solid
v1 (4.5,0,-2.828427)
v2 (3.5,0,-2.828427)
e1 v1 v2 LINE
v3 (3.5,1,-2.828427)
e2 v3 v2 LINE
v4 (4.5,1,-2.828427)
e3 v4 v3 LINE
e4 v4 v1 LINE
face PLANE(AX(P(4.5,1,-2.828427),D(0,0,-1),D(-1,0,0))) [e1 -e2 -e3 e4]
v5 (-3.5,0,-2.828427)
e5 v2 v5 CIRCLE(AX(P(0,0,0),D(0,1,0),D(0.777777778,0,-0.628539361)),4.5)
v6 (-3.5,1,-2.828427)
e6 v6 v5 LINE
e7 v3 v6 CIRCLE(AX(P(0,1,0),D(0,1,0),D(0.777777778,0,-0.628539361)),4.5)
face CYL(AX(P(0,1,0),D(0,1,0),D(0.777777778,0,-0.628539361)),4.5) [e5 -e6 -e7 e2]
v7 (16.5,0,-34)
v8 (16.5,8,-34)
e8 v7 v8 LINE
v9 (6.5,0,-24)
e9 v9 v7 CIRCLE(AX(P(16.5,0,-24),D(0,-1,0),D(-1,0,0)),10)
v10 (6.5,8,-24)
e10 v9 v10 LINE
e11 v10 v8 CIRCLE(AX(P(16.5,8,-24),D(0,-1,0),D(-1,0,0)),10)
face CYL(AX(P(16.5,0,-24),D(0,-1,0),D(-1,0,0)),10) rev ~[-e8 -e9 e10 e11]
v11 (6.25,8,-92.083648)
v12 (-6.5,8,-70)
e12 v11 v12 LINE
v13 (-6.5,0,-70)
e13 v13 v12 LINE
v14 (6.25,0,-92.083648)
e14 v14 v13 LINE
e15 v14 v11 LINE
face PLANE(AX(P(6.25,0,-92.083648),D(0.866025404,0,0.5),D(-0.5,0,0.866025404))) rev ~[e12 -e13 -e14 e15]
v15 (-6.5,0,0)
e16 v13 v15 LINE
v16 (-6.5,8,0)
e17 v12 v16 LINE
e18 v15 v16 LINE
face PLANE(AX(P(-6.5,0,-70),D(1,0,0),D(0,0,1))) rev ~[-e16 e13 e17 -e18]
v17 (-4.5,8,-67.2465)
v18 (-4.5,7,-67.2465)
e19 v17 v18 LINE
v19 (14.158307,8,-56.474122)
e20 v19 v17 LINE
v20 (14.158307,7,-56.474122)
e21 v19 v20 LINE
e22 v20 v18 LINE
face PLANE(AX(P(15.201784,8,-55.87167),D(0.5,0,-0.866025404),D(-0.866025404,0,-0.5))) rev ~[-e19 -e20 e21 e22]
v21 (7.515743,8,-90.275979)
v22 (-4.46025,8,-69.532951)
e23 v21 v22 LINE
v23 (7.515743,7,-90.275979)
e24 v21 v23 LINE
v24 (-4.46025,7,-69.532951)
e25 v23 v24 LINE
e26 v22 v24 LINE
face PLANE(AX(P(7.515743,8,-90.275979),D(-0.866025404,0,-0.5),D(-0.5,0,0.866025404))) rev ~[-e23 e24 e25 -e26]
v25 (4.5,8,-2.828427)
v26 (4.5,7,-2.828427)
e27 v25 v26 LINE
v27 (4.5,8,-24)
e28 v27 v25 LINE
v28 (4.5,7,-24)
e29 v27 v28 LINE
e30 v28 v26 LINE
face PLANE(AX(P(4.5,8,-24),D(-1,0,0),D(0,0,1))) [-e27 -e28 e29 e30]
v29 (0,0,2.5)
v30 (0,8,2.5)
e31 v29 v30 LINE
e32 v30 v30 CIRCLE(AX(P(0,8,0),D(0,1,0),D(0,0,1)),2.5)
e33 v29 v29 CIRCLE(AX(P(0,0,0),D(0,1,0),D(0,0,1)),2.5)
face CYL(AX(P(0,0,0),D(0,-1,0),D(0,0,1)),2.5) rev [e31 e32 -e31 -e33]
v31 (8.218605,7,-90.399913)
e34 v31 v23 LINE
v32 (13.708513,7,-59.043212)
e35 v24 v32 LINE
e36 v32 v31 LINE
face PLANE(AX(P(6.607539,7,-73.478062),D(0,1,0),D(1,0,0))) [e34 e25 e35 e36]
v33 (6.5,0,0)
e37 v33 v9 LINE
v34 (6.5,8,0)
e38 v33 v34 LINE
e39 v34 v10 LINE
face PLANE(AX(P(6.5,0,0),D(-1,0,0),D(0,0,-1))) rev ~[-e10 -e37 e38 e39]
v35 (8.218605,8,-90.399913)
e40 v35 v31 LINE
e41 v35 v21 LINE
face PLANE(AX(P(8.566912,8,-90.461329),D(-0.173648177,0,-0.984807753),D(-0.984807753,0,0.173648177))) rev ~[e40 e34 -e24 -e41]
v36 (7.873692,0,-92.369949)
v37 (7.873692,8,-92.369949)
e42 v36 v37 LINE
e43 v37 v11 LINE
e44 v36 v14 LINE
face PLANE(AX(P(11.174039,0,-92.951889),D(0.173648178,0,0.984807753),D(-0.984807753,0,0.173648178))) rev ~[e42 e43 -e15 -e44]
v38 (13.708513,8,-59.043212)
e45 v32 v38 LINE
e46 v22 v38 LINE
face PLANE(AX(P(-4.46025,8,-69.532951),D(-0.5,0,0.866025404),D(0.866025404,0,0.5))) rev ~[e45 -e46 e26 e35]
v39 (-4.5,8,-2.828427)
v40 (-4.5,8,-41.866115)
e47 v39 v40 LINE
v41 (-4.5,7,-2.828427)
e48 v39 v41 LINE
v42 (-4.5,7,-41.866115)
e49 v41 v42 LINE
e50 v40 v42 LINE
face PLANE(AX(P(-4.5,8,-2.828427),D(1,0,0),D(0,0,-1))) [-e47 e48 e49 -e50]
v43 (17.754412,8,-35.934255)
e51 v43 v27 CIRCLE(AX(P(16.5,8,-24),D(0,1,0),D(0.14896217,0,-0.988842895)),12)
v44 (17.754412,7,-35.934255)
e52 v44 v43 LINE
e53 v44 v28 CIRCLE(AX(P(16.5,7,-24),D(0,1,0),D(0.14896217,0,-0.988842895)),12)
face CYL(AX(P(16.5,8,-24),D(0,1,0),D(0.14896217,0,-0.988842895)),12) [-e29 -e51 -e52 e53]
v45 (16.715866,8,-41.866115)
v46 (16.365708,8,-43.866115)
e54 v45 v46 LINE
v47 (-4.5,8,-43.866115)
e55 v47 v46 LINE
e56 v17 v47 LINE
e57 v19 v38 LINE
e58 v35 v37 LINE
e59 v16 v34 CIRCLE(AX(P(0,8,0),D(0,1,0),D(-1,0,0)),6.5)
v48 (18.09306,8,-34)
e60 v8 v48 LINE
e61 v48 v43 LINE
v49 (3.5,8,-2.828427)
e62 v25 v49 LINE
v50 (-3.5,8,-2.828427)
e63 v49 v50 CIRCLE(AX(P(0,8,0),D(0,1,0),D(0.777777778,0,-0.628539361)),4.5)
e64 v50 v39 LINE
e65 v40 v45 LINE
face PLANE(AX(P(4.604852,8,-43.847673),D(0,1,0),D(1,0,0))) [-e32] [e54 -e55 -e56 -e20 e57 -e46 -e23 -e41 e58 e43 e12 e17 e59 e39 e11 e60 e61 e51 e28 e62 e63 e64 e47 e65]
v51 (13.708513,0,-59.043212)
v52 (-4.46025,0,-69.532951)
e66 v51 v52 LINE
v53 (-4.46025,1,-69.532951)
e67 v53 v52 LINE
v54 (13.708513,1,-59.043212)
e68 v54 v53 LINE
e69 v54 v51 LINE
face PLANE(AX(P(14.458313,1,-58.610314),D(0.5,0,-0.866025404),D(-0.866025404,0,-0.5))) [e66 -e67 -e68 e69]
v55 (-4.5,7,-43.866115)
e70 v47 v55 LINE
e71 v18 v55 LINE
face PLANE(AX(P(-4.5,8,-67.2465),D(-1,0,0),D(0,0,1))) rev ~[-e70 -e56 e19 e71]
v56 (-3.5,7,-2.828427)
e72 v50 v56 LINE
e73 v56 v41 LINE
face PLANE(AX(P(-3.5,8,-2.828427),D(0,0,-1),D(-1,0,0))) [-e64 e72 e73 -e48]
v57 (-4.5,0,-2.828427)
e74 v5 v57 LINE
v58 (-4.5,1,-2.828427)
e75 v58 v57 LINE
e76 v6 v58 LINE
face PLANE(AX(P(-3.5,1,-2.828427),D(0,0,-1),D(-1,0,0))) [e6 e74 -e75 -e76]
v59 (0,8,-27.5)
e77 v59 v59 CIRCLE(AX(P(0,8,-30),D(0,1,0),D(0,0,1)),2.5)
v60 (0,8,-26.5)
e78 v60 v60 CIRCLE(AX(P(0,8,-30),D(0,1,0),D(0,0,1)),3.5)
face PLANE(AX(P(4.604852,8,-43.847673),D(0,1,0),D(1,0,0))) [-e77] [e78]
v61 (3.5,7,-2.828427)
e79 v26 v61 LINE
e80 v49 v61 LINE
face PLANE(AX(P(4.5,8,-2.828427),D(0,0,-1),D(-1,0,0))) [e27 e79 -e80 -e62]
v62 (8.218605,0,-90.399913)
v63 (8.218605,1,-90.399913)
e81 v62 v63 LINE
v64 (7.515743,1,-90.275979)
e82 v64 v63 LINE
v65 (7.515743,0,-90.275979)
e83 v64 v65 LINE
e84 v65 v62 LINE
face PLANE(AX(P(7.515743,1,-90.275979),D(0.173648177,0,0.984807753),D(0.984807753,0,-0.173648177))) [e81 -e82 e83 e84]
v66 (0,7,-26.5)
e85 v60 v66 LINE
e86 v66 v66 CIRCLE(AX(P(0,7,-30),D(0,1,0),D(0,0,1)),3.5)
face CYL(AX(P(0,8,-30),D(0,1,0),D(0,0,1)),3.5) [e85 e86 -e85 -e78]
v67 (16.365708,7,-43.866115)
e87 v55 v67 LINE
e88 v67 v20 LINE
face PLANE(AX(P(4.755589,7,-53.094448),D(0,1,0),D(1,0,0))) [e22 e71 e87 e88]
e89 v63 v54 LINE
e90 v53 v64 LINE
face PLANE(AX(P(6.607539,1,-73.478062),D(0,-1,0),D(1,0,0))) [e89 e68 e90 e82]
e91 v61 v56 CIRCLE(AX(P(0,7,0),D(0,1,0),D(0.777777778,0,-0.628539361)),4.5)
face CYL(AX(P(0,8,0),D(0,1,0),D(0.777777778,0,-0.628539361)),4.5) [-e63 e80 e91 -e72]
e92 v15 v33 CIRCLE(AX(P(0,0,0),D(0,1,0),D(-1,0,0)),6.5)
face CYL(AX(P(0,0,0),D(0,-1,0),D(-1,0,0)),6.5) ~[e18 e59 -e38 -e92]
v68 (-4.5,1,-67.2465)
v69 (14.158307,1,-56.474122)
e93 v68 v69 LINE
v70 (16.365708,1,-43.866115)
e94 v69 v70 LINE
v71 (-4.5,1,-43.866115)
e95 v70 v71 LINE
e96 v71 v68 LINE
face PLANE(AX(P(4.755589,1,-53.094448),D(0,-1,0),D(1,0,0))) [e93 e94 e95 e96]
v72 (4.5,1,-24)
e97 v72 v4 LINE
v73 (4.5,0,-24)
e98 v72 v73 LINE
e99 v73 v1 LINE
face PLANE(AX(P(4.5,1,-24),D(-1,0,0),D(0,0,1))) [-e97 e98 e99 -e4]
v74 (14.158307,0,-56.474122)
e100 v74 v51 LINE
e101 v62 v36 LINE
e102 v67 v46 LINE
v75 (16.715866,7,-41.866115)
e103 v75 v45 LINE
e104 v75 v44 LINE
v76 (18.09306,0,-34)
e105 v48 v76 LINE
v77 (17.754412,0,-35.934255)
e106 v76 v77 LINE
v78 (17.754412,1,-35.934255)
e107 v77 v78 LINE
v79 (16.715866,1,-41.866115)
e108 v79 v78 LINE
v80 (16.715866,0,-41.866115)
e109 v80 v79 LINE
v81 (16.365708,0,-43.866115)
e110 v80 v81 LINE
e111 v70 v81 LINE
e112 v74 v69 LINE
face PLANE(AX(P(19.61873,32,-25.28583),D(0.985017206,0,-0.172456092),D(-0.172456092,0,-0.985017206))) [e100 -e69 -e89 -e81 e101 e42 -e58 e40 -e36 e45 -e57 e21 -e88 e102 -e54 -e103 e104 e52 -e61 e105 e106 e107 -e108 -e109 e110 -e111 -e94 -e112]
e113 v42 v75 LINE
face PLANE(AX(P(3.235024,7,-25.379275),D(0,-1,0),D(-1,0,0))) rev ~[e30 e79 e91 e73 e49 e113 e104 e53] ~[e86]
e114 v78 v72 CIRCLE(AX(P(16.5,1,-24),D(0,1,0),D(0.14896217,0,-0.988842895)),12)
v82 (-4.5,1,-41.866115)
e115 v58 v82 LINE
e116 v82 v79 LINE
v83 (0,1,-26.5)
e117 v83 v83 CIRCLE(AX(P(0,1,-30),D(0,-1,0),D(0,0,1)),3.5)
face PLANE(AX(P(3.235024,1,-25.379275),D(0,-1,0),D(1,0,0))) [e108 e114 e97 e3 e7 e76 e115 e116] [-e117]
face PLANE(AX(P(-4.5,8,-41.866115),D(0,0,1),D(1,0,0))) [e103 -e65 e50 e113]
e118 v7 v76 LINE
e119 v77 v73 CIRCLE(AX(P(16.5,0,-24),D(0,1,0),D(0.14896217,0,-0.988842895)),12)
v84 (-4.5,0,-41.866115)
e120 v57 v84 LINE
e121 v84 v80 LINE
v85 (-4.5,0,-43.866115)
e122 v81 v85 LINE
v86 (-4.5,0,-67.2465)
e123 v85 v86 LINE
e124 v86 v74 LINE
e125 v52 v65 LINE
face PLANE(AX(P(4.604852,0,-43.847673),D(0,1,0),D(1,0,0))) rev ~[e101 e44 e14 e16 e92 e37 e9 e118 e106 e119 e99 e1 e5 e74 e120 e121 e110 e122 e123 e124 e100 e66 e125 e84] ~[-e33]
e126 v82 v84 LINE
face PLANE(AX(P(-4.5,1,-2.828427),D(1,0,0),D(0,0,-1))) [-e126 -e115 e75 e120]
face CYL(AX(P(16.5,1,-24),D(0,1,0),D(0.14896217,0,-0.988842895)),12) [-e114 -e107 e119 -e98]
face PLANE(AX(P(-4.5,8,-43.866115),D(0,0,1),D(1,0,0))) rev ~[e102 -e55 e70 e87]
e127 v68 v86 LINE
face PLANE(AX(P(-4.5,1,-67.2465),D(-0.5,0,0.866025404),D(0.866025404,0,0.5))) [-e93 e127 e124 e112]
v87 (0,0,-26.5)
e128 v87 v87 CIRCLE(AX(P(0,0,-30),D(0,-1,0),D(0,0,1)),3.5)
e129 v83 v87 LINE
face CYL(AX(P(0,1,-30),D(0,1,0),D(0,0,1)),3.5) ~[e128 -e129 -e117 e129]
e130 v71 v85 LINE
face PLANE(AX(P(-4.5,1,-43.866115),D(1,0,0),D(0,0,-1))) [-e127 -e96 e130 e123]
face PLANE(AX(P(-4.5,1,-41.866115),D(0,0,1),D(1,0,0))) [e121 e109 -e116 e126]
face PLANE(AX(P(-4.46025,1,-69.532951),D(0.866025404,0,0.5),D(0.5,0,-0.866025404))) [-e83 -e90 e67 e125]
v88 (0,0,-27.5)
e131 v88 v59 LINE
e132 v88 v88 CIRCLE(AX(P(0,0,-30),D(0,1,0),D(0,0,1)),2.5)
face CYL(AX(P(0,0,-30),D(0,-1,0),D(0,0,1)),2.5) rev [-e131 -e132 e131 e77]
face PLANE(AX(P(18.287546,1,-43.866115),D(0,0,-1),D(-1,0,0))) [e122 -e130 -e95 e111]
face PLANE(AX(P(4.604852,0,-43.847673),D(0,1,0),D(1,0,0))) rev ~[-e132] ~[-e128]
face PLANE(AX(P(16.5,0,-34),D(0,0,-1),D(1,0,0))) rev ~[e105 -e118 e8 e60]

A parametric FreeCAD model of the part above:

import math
import FreeCAD as App
import Part
import Sketcher
from FreeCAD import Vector
Q = App.Units.Quantity

doc = App.newDocument("Part")
body = doc.addObject("PartDesign::Body", "Body")

sketch1 = body.newObject("Sketcher::SketchObject", "Sketch")
sketch1.AttachmentSupport = (doc.getObject("XZ_Plane"), [""])
sketch1.MapMode = "FlatFace"
sketch1.addGeometry([
    Part.LineSegment(Vector(-6.5, -70, 0), Vector(-6.5, 0, 0)),
    Part.ArcOfCircle(Part.Circle(Vector(0, 0, 0), Vector(0, 0, 1), 6.5), math.radians(0), math.radians(180)),
    Part.LineSegment(Vector(6.5, 0, 0), Vector(6.5, -24, 0)),
    Part.ArcOfCircle(Part.Circle(Vector(16.5, -24, 0), Vector(0, 0, 1), 10), math.radians(180), math.radians(270)),
    Part.LineSegment(Vector(16.5, -34, 0), Vector(19.5, -34, 0)),
    Part.LineSegment(Vector(19.5, -34, 0), Vector(21.6, -36.1, 0)),
    Part.LineSegment(Vector(21.6, -36.1, 0), Vector(19.6, -38.1, 0)),
    Part.LineSegment(Vector(19.6, -38.1, 0), Vector(21.6, -40.1, 0)),
    Part.LineSegment(Vector(21.6, -40.1, 0), Vector(19.6, -42.1, 0)),
    Part.LineSegment(Vector(19.6, -42.1, 0), Vector(21.6, -44.1, 0)),
    Part.ArcOfCircle(Part.Circle(Vector(106.5, -82.1, 0), Vector(0, 0, 1), 93), math.radians(156), math.radians(178)),
    Part.LineSegment(Vector(13.5, -79.6, 0), Vector(11.2, -81.2, 0)),
    Part.LineSegment(Vector(11.2, -81.2, 0), Vector(12.8, -83.5, 0)),
    Part.LineSegment(Vector(12.8, -83.5, 0), Vector(10.5, -85.1, 0)),
    Part.LineSegment(Vector(10.5, -85.1, 0), Vector(12.1, -87.4, 0)),
    Part.LineSegment(Vector(12.1, -87.4, 0), Vector(9.8, -89.1, 0)),
    Part.LineSegment(Vector(9.8, -89.1, 0), Vector(11.5, -91.4, 0)),
    Part.LineSegment(Vector(11.5, -91.4, 0), Vector(11.2, -93, 0)),
    Part.LineSegment(Vector(11.2, -93, 0), Vector(6.2, -92.1, 0)),
    Part.LineSegment(Vector(6.2, -92.1, 0), Vector(-6.5, -70, 0)),
    Part.Circle(Vector(0, 0, 0), Vector(0, 0, 1), 2.5),
    Part.Circle(Vector(0, -30, 0), Vector(0, 0, 1), 2.5),
], False)
sketch1.addConstraint([
    Sketcher.Constraint("Tangent", 0, 2, 1, 2),
    Sketcher.Constraint("Tangent", 1, 1, 2, 1),
    Sketcher.Constraint("Tangent", 2, 2, 3, 1),
    Sketcher.Constraint("Tangent", 3, 2, 4, 1),
    Sketcher.Constraint("Coincident", 4, 2, 5, 1),
    Sketcher.Constraint("Coincident", 5, 2, 6, 1),
    Sketcher.Constraint("Coincident", 6, 2, 7, 1),
    Sketcher.Constraint("Coincident", 7, 2, 8, 1),
    Sketcher.Constraint("Coincident", 8, 2, 9, 1),
    Sketcher.Constraint("Coincident", 9, 2, 10, 1),
    Sketcher.Constraint("Coincident", 10, 2, 11, 1),
    Sketcher.Constraint("Coincident", 11, 2, 12, 1),
    Sketcher.Constraint("Coincident", 12, 2, 13, 1),
    Sketcher.Constraint("Coincident", 13, 2, 14, 1),
    Sketcher.Constraint("Coincident", 14, 2, 15, 1),
    Sketcher.Constraint("Coincident", 15, 2, 16, 1),
    Sketcher.Constraint("Coincident", 16, 2, 17, 1),
    Sketcher.Constraint("Coincident", 17, 2, 18, 1),
    Sketcher.Constraint("Coincident", 18, 2, 19, 1),
    Sketcher.Constraint("Coincident", 19, 2, 0, 1),
    Sketcher.Constraint("Vertical", 0),
    Sketcher.Constraint("Vertical", 2),
    Sketcher.Constraint("Horizontal", 4),
    Sketcher.Constraint("Coincident", 1, 3, -1, 1),
    Sketcher.Constraint("Coincident", 20, 3, -1, 1),
    Sketcher.Constraint("Equal", 20, 21),
    Sketcher.Constraint("PointOnObject", 21, 3, -2),
    Sketcher.Constraint("Perpendicular", 5, 6),
    Sketcher.Constraint("Perpendicular", 6, 7),
    Sketcher.Constraint("Perpendicular", 7, 8),
    Sketcher.Constraint("Perpendicular", 8, 9),
    Sketcher.Constraint("Perpendicular", 11, 12),
    Sketcher.Constraint("Perpendicular", 12, 13),
    Sketcher.Constraint("Perpendicular", 13, 14),
    Sketcher.Constraint("Perpendicular", 14, 15),
    Sketcher.Constraint("Perpendicular", 15, 16),
    Sketcher.Constraint("Perpendicular", 17, 18),
    Sketcher.Constraint("Vertical", 5, 2, 7, 2),
    Sketcher.Constraint("Vertical", 6, 2, 8, 2),
    Sketcher.Constraint("Vertical", 7, 2, 9, 2),
    Sketcher.Constraint("Equal", 6, 7),
    Sketcher.Constraint("Equal", 9, 11),
    Sketcher.Constraint("Equal", 11, 12),
    Sketcher.Constraint("Equal", 12, 13),
    Sketcher.Constraint("Equal", 13, 14),
    Sketcher.Constraint("Equal", 14, 15),
    Sketcher.Constraint("Equal", 15, 16),
    Sketcher.Constraint("Diameter", 20, 5.0),
    Sketcher.Constraint("Radius", 3, 10.0),
    Sketcher.Constraint("Radius", 1, 6.5),
    Sketcher.Constraint("DistanceX", 4, 1, 4, 2, 3.0),
    Sketcher.Constraint("DistanceY", 0, 1, 0, 2, 70.0),
    Sketcher.Constraint("DistanceY", 2, 2, 2, 1, 24.0),
    Sketcher.Constraint("Angle", 11, Q("-145 deg")),
    Sketcher.Constraint("Angle", 17, Q("-100 deg")),
    Sketcher.Constraint("Angle", 19, Q("120 deg")),
    Sketcher.Constraint("Distance", 5, 3.0),
    Sketcher.Constraint("Distance", 18, 5.0),
    Sketcher.Constraint("DistanceY", 21, 3, -1, 1, 30.0),
    Sketcher.Constraint("DistanceX", 6, 2, 5, 2, 2.0),
    Sketcher.Constraint("Distance", 17, 1.6),
    Sketcher.Constraint("Distance", 19, 25.5),
    Sketcher.Constraint("Radius", 10, 93.047321),
])
pad1 = body.newObject("PartDesign::Pad", "Pad")
pad1.Profile = sketch1
pad1.Length = 8
pad1.Reversed = True

sketch2 = body.newObject("Sketcher::SketchObject", "Sketch001")
sketch2.AttachmentSupport = (doc.getObject("XZ_Plane"), [""])
sketch2.MapMode = "FlatFace"
sketch2.AttachmentOffset = App.Placement(Vector(0, 0, -8), App.Rotation())
sketch2.addGeometry([
    Part.LineSegment(Vector(7.5, -90.3, 0), Vector(-4.5, -69.5, 0)),
    Part.LineSegment(Vector(-4.5, -69.5, 0), Vector(14.5, -58.6, 0)),
    Part.ArcOfCircle(Part.Circle(Vector(106.5, -82.1, 0), Vector(0, 0, 1), 95), math.radians(165.67), math.radians(170.21)),
    Part.LineSegment(Vector(12.9, -66, 0), Vector(8.6, -90.5, 0)),
    Part.LineSegment(Vector(8.6, -90.5, 0), Vector(7.5, -90.3, 0)),
    Part.LineSegment(Vector(-4.5, -67.2, 0), Vector(-4.5, -43.9, 0)),
    Part.LineSegment(Vector(-4.5, -43.9, 0), Vector(18.3, -43.9, 0)),
    Part.LineSegment(Vector(18.3, -43.9, 0), Vector(18.3, -46.9, 0)),
    Part.ArcOfCircle(Part.Circle(Vector(106.5, -82.1, 0), Vector(0, 0, 1), 95), math.radians(158.22), math.radians(163.96)),
    Part.LineSegment(Vector(15.2, -55.9, 0), Vector(-4.5, -67.2, 0)),
    Part.LineSegment(Vector(-4.5, -41.9, 0), Vector(-4.5, -2.8, 0)),
    Part.LineSegment(Vector(-4.5, -2.8, 0), Vector(-3.5, -2.8, 0)),
    Part.ArcOfCircle(Part.Circle(Vector(0, 0, 0), Vector(0, 0, 1), 4.5), math.radians(-141), math.radians(-39)),
    Part.LineSegment(Vector(3.5, -2.8, 0), Vector(4.5, -2.8, 0)),
    Part.LineSegment(Vector(4.5, -2.8, 0), Vector(4.5, -24, 0)),
    Part.ArcOfCircle(Part.Circle(Vector(16.5, -24, 0), Vector(0, 0, 1), 12), math.radians(180), math.radians(279)),
    Part.LineSegment(Vector(18.3, -35.9, 0), Vector(18.3, -41.9, 0)),
    Part.LineSegment(Vector(18.3, -41.9, 0), Vector(-4.5, -41.9, 0)),
    Part.Circle(Vector(0, -30, 0), Vector(0, 0, 1), 3.5),
], False)
sketch2.addConstraint([
    Sketcher.Constraint("Coincident", 0, 2, 1, 1),
    Sketcher.Constraint("Coincident", 1, 2, 2, 1),
    Sketcher.Constraint("Coincident", 2, 2, 3, 1),
    Sketcher.Constraint("Coincident", 3, 2, 4, 1),
    Sketcher.Constraint("Coincident", 4, 2, 0, 1),
    Sketcher.Constraint("Coincident", 5, 2, 6, 1),
    Sketcher.Constraint("Coincident", 6, 2, 7, 1),
    Sketcher.Constraint("Coincident", 7, 2, 8, 1),
    Sketcher.Constraint("Coincident", 8, 2, 9, 1),
    Sketcher.Constraint("Coincident", 9, 2, 5, 1),
    Sketcher.Constraint("Coincident", 10, 2, 11, 1),
    Sketcher.Constraint("Coincident", 11, 2, 12, 1),
    Sketcher.Constraint("Coincident", 12, 2, 13, 1),
    Sketcher.Constraint("Coincident", 13, 2, 14, 1),
    Sketcher.Constraint("Tangent", 14, 2, 15, 1),
    Sketcher.Constraint("Coincident", 15, 2, 16, 1),
    Sketcher.Constraint("Coincident", 16, 2, 17, 1),
    Sketcher.Constraint("Coincident", 17, 2, 10, 1),
    Sketcher.Constraint("Vertical", 5),
    Sketcher.Constraint("Horizontal", 6),
    Sketcher.Constraint("Vertical", 7),
    Sketcher.Constraint("Vertical", 10),
    Sketcher.Constraint("Horizontal", 11),
    Sketcher.Constraint("Horizontal", 13),
    Sketcher.Constraint("Vertical", 14),
    Sketcher.Constraint("Vertical", 16),
    Sketcher.Constraint("Horizontal", 17),
    Sketcher.Constraint("Coincident", 12, 3, -1, 1),
    Sketcher.Constraint("Coincident", 8, 3, 2, 3),
    Sketcher.Constraint("Equal", 2, 8),
    Sketcher.Constraint("Symmetric", 10, 2, 13, 2, -2),
    Sketcher.Constraint("PointOnObject", 18, 3, -2),
    Sketcher.Constraint("Perpendicular", 0, 1),
    Sketcher.Constraint("Perpendicular", 3, 4),
    Sketcher.Constraint("Parallel", 1, 9),
    Sketcher.Constraint("Vertical", 9, 2, 10, 2),
    Sketcher.Constraint("Vertical", 7, 2, 15, 2),
    Sketcher.Constraint("Diameter", 18, 7.0),
    Sketcher.Constraint("Radius", 15, 12.0),
    Sketcher.Constraint("Radius", 12, 4.5),
    Sketcher.Constraint("DistanceX", 11, 1, 11, 2, 1.0),
    Sketcher.Constraint("DistanceY", 7, 2, 7, 1, 3.0),
    Sketcher.Constraint("DistanceY", 16, 2, 16, 1, 6.0),
    Sketcher.Constraint("Angle", 0, Q("120 deg")),
    Sketcher.Constraint("Angle", 3, Q("-100 deg")),
    Sketcher.Constraint("DistanceY", 15, 3, -1, 1, 24.0),
    Sketcher.Constraint("DistanceY", 18, 3, -1, 1, 30.0),
    Sketcher.Constraint("DistanceX", 5, 2, 15, 3, 21.0),
    Sketcher.Constraint("DistanceY", 6, 2, 15, 2, 8.0),
    Sketcher.Constraint("Radius", 2, 95.047321),
    Sketcher.Constraint("DistanceY", 9, 2, -1, 1, 67.2465),
    Sketcher.Constraint("DistanceX", 3, 2, 1, 2, 5.891401),
    Sketcher.Constraint("DistanceY", 1, 2, 5, 2, 14.744199),
    Sketcher.Constraint("Distance", 9, 22.74966),
    Sketcher.Constraint("DistanceX", 6, 1, 6, 2, 22.787546),
    Sketcher.Constraint("DistanceX", 0, 2, -1, 1, 4.46025),
    Sketcher.Constraint("DistanceY", 2, 2, -1, 1, 65.975209),
])
pocket1 = body.newObject("PartDesign::Pocket", "Pocket")
pocket1.Profile = sketch2
pocket1.Length = 1
pocket1.Reversed = True

sketch3 = body.newObject("Sketcher::SketchObject", "Sketch002")
sketch3.AttachmentSupport = (doc.getObject("XZ_Plane"), [""])
sketch3.MapMode = "FlatFace"
sketch3.AttachmentOffset = App.Placement(Vector(0, 0, -1), App.Rotation())
sketch3.addGeometry([
    Part.LineSegment(Vector(4.5, -24, 0), Vector(4.5, -2.828427, 0)),
    Part.LineSegment(Vector(4.5, -2.828427, 0), Vector(3.5, -2.828427, 0)),
    Part.ArcOfCircle(Part.Circle(Vector(0, 0, 0), Vector(0, 0, 1), 4.5), math.radians(-141.057559), math.radians(-38.942441)),
    Part.LineSegment(Vector(-3.5, -2.828427, 0), Vector(-4.5, -2.828427, 0)),
    Part.LineSegment(Vector(-4.5, -2.828427, 0), Vector(-4.5, -41.866115, 0)),
    Part.LineSegment(Vector(-4.5, -41.866115, 0), Vector(18.287546, -41.866115, 0)),
    Part.LineSegment(Vector(18.287546, -41.866115, 0), Vector(18.287546, -35.866115, 0)),
    Part.ArcOfCircle(Part.Circle(Vector(16.5, -24, 0), Vector(0, 0, 1), 12), math.radians(180), math.radians(278.566788)),
    Part.Circle(Vector(0, -30, 0), Vector(0, 0, 1), 3.5),
    Part.LineSegment(Vector(14.458313, -58.610314, 0), Vector(-4.46025, -69.532951, 0)),
    Part.LineSegment(Vector(-4.46025, -69.532951, 0), Vector(7.515743, -90.275979, 0)),
    Part.LineSegment(Vector(7.515743, -90.275979, 0), Vector(8.566912, -90.461329, 0)),
    Part.LineSegment(Vector(8.566912, -90.461329, 0), Vector(12.884475, -65.975209, 0)),
    Part.ArcOfCircle(Part.Circle(Vector(106.547163, -82.139805, 0), Vector(0, 0, 1), 95.047321), math.radians(165.667091), math.radians(170.208173)),
    Part.LineSegment(Vector(-4.5, -67.2465, 0), Vector(15.201784, -55.87167, 0)),
    Part.ArcOfCircle(Part.Circle(Vector(106.547163, -82.139805, 0), Vector(0, 0, 1), 95.047321), math.radians(158.215469), math.radians(163.956385)),
    Part.LineSegment(Vector(18.287546, -46.866115, 0), Vector(18.287546, -43.866115, 0)),
    Part.LineSegment(Vector(18.287546, -43.866115, 0), Vector(-4.5, -43.866115, 0)),
    Part.LineSegment(Vector(-4.5, -43.866115, 0), Vector(-4.5, -67.2465, 0)),
], False)
sketch3.addConstraint([
    Sketcher.Constraint("Coincident", 0, 2, 1, 1),
    Sketcher.Constraint("Coincident", 1, 2, 2, 2),
    Sketcher.Constraint("Coincident", 2, 1, 3, 1),
    Sketcher.Constraint("Coincident", 3, 2, 4, 1),
    Sketcher.Constraint("Coincident", 4, 2, 5, 1),
    Sketcher.Constraint("Coincident", 5, 2, 6, 1),
    Sketcher.Constraint("Coincident", 6, 2, 7, 2),
    Sketcher.Constraint("Coincident", 7, 1, 0, 1),
    Sketcher.Constraint("Coincident", 9, 2, 10, 1),
    Sketcher.Constraint("Coincident", 10, 2, 11, 1),
    Sketcher.Constraint("Coincident", 11, 2, 12, 1),
    Sketcher.Constraint("Coincident", 12, 2, 13, 2),
    Sketcher.Constraint("Coincident", 13, 1, 9, 1),
    Sketcher.Constraint("Coincident", 14, 2, 15, 2),
    Sketcher.Constraint("Coincident", 15, 1, 16, 1),
    Sketcher.Constraint("Coincident", 16, 2, 17, 1),
    Sketcher.Constraint("Coincident", 17, 2, 18, 1),
    Sketcher.Constraint("Coincident", 18, 2, 14, 1),
    Sketcher.Constraint("Vertical", 0),
    Sketcher.Constraint("Horizontal", 1),
    Sketcher.Constraint("Horizontal", 3),
    Sketcher.Constraint("Vertical", 4),
    Sketcher.Constraint("Horizontal", 5),
    Sketcher.Constraint("Vertical", 6),
    Sketcher.Constraint("Vertical", 16),
    Sketcher.Constraint("Horizontal", 17),
    Sketcher.Constraint("Vertical", 18),
    Sketcher.Constraint("Coincident", 2, 3, -1, 1),
    Sketcher.Constraint("Coincident", 15, 3, 13, 3),
    Sketcher.Constraint("PointOnObject", 8, 3, -2),
    Sketcher.Constraint("Diameter", 8, 7.0),
    Sketcher.Constraint("Radius", 7, 12.0),
    Sketcher.Constraint("Radius", 2, 4.5),
    Sketcher.Constraint("DistanceX", 1, 2, 1, 1, 1.0),
    Sketcher.Constraint("DistanceX", 3, 2, 3, 1, 1.0),
    Sketcher.Constraint("DistanceY", 6, 1, 6, 2, 6.0),
    Sketcher.Constraint("DistanceY", 16, 1, 16, 2, 3.0),
    Sketcher.Constraint("DistanceY", 7, 3, -1, 1, 24.0),
    Sketcher.Constraint("DistanceY", 8, 3, -1, 1, 30.0),
    Sketcher.Constraint("DistanceY", 7, 1, -1, 1, 24.0),
    Sketcher.Constraint("DistanceX", 2, 1, 1, 2, 7.0),
    Sketcher.Constraint("DistanceY", 15, 1, 5, 2, 5.0),
    Sketcher.Constraint("DistanceX", 17, 2, 7, 1, 9.0),
    Sketcher.Constraint("DistanceX", -1, 1, 7, 3, 16.5),
    Sketcher.Constraint("Radius", 13, 95.047321),
    Sketcher.Constraint("Radius", 15, 95.047321),
    Sketcher.Constraint("DistanceY", 18, 2, -1, 1, 67.2465),
    Sketcher.Constraint("DistanceY", 13, 1, 5, 2, 16.744199),
    Sketcher.Constraint("Distance", 14, 22.74966),
    Sketcher.Constraint("DistanceX", 5, 1, 5, 2, 22.787546),
    Sketcher.Constraint("DistanceX", 17, 2, 17, 1, 22.787546),
    Sketcher.Constraint("DistanceX", 9, 2, -1, 1, 4.46025),
    Sketcher.Constraint("DistanceY", 9, 2, -1, 1, 69.532951),
    Sketcher.Constraint("DistanceY", 10, 2, -1, 1, 90.275979),
    Sketcher.Constraint("DistanceX", -1, 1, 11, 2, 8.566912),
    Sketcher.Constraint("DistanceY", 11, 2, -1, 1, 90.461329),
    Sketcher.Constraint("DistanceY", 12, 2, -1, 1, 65.975209),
    Sketcher.Constraint("DistanceY", 14, 2, -1, 1, 55.87167),
    Sketcher.Constraint("DistanceX", 10, 2, 11, 2, 1.051169),
])
pocket2 = body.newObject("PartDesign::Pocket", "Pocket001")
pocket2.Profile = sketch3
pocket2.Length = 1
pocket2.Reversed = True

sketch4 = body.newObject("Sketcher::SketchObject", "Sketch003")
sketch4.AttachmentSupport = (doc.getObject("XZ_Plane"), [""])
sketch4.MapMode = "FlatFace"
sketch4.addGeometry([
    Part.LineSegment(Vector(13.5, -79.6, 0), Vector(10.7, -78.2, 0)),
    Part.LineSegment(Vector(10.7, -78.2, 0), Vector(8.7, -92.5, 0)),
    Part.LineSegment(Vector(8.7, -92.5, 0), Vector(11.2, -93, 0)),
    Part.LineSegment(Vector(11.2, -93, 0), Vector(11.5, -91.4, 0)),
    Part.LineSegment(Vector(11.5, -91.4, 0), Vector(9.8, -89.1, 0)),
    Part.LineSegment(Vector(9.8, -89.1, 0), Vector(12.1, -87.4, 0)),
    Part.LineSegment(Vector(12.1, -87.4, 0), Vector(10.5, -85.1, 0)),
    Part.LineSegment(Vector(10.5, -85.1, 0), Vector(12.8, -83.5, 0)),
    Part.LineSegment(Vector(12.8, -83.5, 0), Vector(11.2, -81.2, 0)),
    Part.LineSegment(Vector(11.2, -81.2, 0), Vector(13.5, -79.6, 0)),
], False)
sketch4.addConstraint([
    Sketcher.Constraint("Coincident", 0, 2, 1, 1),
    Sketcher.Constraint("Coincident", 1, 2, 2, 1),
    Sketcher.Constraint("Coincident", 2, 2, 3, 1),
    Sketcher.Constraint("Coincident", 3, 2, 4, 1),
    Sketcher.Constraint("Coincident", 4, 2, 5, 1),
    Sketcher.Constraint("Coincident", 5, 2, 6, 1),
    Sketcher.Constraint("Coincident", 6, 2, 7, 1),
    Sketcher.Constraint("Coincident", 7, 2, 8, 1),
    Sketcher.Constraint("Coincident", 8, 2, 9, 1),
    Sketcher.Constraint("Coincident", 9, 2, 0, 1),
    Sketcher.Constraint("Perpendicular", 2, 3),
    Sketcher.Constraint("Perpendicular", 4, 5),
    Sketcher.Constraint("Perpendicular", 5, 6),
    Sketcher.Constraint("Perpendicular", 6, 7),
    Sketcher.Constraint("Perpendicular", 7, 8),
    Sketcher.Constraint("Perpendicular", 8, 9),
    Sketcher.Constraint("Equal", 4, 5),
    Sketcher.Constraint("Equal", 5, 6),
    Sketcher.Constraint("Equal", 6, 7),
    Sketcher.Constraint("Equal", 7, 8),
    Sketcher.Constraint("Equal", 8, 9),
    Sketcher.Constraint("Angle", 2, Q("-10 deg")),
    Sketcher.Constraint("Angle", 4, Q("125 deg")),
    Sketcher.Constraint("Distance", 2, 2.5),
    Sketcher.Constraint("Distance", 3, 1.6),
    Sketcher.Constraint("DistanceY", 1, 2, 0, 2, 14.299499),
    Sketcher.Constraint("DistanceY", 0, 2, -1, 1, 78.218269),
    Sketcher.Constraint("DistanceX", -1, 1, 1, 2, 8.712019),
    Sketcher.Constraint("DistanceX", -1, 1, 5, 2, 12.146469),
    Sketcher.Constraint("DistanceX", 0, 2, 8, 2, 0.493048),
])
pad2 = body.newObject("PartDesign::Pad", "Pad001")
pad2.Profile = sketch4
pad2.Type = "TwoLengths"
pad2.Length = 10
pad2.Length2 = 18

sketch5 = body.newObject("Sketcher::SketchObject", "Sketch004")
sketch5.AttachmentSupport = (doc.getObject("XZ_Plane"), [""])
sketch5.MapMode = "FlatFace"
sketch5.addGeometry([
    Part.LineSegment(Vector(20.85, -45.88, 0), Vector(20.06, -46.68, 0)),
    Part.LineSegment(Vector(20.06, -46.68, 0), Vector(20.06, -47.82, 0)),
    Part.LineSegment(Vector(20.06, -47.82, 0), Vector(19.02, -48.86, 0)),
    Part.LineSegment(Vector(19.02, -48.86, 0), Vector(19.21, -50.04, 0)),
    Part.LineSegment(Vector(19.21, -50.04, 0), Vector(18.35, -50.9, 0)),
    Part.LineSegment(Vector(18.35, -50.9, 0), Vector(18.64, -51.66, 0)),
    Part.LineSegment(Vector(18.64, -51.66, 0), Vector(18.35, -51.66, 0)),
    Part.LineSegment(Vector(18.35, -51.66, 0), Vector(18.35, -52.51, 0)),
    Part.LineSegment(Vector(18.35, -52.51, 0), Vector(17.48, -52.84, 0)),
    Part.LineSegment(Vector(17.48, -52.84, 0), Vector(17.94, -53.73, 0)),
    Part.LineSegment(Vector(17.94, -53.73, 0), Vector(17.48, -53.73, 0)),
    Part.LineSegment(Vector(17.48, -53.73, 0), Vector(17.73, -54.4, 0)),
    Part.LineSegment(Vector(17.73, -54.4, 0), Vector(17.06, -55.07, 0)),
    Part.LineSegment(Vector(17.06, -55.07, 0), Vector(17.33, -55.71, 0)),
    Part.LineSegment(Vector(17.33, -55.71, 0), Vector(17.06, -55.71, 0)),
    Part.LineSegment(Vector(17.06, -55.71, 0), Vector(17.06, -56.65, 0)),
    Part.LineSegment(Vector(17.06, -56.65, 0), Vector(16.63, -57.16, 0)),
    Part.LineSegment(Vector(16.63, -57.16, 0), Vector(16.63, -58.2, 0)),
    Part.LineSegment(Vector(16.63, -58.2, 0), Vector(15.83, -59.16, 0)),
    Part.LineSegment(Vector(15.83, -59.16, 0), Vector(16.23, -59.75, 0)),
    Part.LineSegment(Vector(16.23, -59.75, 0), Vector(15.36, -60.34, 0)),
    Part.LineSegment(Vector(15.36, -60.34, 0), Vector(15.83, -61.44, 0)),
    Part.LineSegment(Vector(15.83, -61.44, 0), Vector(15.02, -62, 0)),
    Part.LineSegment(Vector(15.02, -62, 0), Vector(15.47, -63.07, 0)),
    Part.LineSegment(Vector(15.47, -63.07, 0), Vector(14.59, -63.67, 0)),
    Part.LineSegment(Vector(14.59, -63.67, 0), Vector(15.18, -64.53, 0)),
    Part.LineSegment(Vector(15.18, -64.53, 0), Vector(14.34, -65.11, 0)),
    Part.LineSegment(Vector(14.34, -65.11, 0), Vector(14.86, -66.32, 0)),
    Part.LineSegment(Vector(14.86, -66.32, 0), Vector(13.92, -66.95, 0)),
    Part.LineSegment(Vector(13.92, -66.95, 0), Vector(14.59, -67.94, 0)),
    Part.LineSegment(Vector(14.59, -67.94, 0), Vector(13.92, -68.4, 0)),
    Part.LineSegment(Vector(13.92, -68.4, 0), Vector(14.37, -69.46, 0)),
    Part.LineSegment(Vector(14.37, -69.46, 0), Vector(13.49, -70.06, 0)),
    Part.LineSegment(Vector(13.49, -70.06, 0), Vector(14.16, -71.05, 0)),
    Part.LineSegment(Vector(14.16, -71.05, 0), Vector(13.27, -72.12, 0)),
    Part.LineSegment(Vector(13.27, -72.12, 0), Vector(13.98, -72.71, 0)),
    Part.LineSegment(Vector(13.98, -72.71, 0), Vector(13.27, -73.56, 0)),
    Part.LineSegment(Vector(13.27, -73.56, 0), Vector(13.82, -74.38, 0)),
    Part.LineSegment(Vector(13.82, -74.38, 0), Vector(13.27, -74.76, 0)),
    Part.LineSegment(Vector(13.27, -74.76, 0), Vector(13.74, -75.45, 0)),
    Part.LineSegment(Vector(13.74, -75.45, 0), Vector(12.8, -76.09, 0)),
    Part.LineSegment(Vector(12.8, -76.09, 0), Vector(13.63, -77.3, 0)),
    Part.LineSegment(Vector(13.63, -77.3, 0), Vector(12.8, -77.86, 0)),
    Part.LineSegment(Vector(12.8, -77.86, 0), Vector(13.55, -78.97, 0)),
    Part.LineSegment(Vector(13.55, -78.97, 0), Vector(20.85, -45.88, 0)),
], False)
sketch5.addConstraint([
    Sketcher.Constraint("Coincident", 0, 2, 1, 1),
    Sketcher.Constraint("Coincident", 1, 2, 2, 1),
    Sketcher.Constraint("Coincident", 2, 2, 3, 1),
    Sketcher.Constraint("Coincident", 3, 2, 4, 1),
    Sketcher.Constraint("Coincident", 4, 2, 5, 1),
    Sketcher.Constraint("Coincident", 5, 2, 6, 1),
    Sketcher.Constraint("Coincident", 6, 2, 7, 1),
    Sketcher.Constraint("Coincident", 7, 2, 8, 1),
    Sketcher.Constraint("Coincident", 8, 2, 9, 1),
    Sketcher.Constraint("Coincident", 9, 2, 10, 1),
    Sketcher.Constraint("Coincident", 10, 2, 11, 1),
    Sketcher.Constraint("Coincident", 11, 2, 12, 1),
    Sketcher.Constraint("Coincident", 12, 2, 13, 1),
    Sketcher.Constraint("Coincident", 13, 2, 14, 1),
    Sketcher.Constraint("Coincident", 14, 2, 15, 1),
    Sketcher.Constraint("Coincident", 15, 2, 16, 1),
    Sketcher.Constraint("Coincident", 16, 2, 17, 1),
    Sketcher.Constraint("Coincident", 17, 2, 18, 1),
    Sketcher.Constraint("Coincident", 18, 2, 19, 1),
    Sketcher.Constraint("Coincident", 19, 2, 20, 1),
    Sketcher.Constraint("Coincident", 20, 2, 21, 1),
    Sketcher.Constraint("Coincident", 21, 2, 22, 1),
    Sketcher.Constraint("Coincident", 22, 2, 23, 1),
    Sketcher.Constraint("Coincident", 23, 2, 24, 1),
    Sketcher.Constraint("Coincident", 24, 2, 25, 1),
    Sketcher.Constraint("Coincident", 25, 2, 26, 1),
    Sketcher.Constraint("Coincident", 26, 2, 27, 1),
    Sketcher.Constraint("Coincident", 27, 2, 28, 1),
    Sketcher.Constraint("Coincident", 28, 2, 29, 1),
    Sketcher.Constraint("Coincident", 29, 2, 30, 1),
    Sketcher.Constraint("Coincident", 30, 2, 31, 1),
    Sketcher.Constraint("Coincident", 31, 2, 32, 1),
    Sketcher.Constraint("Coincident", 32, 2, 33, 1),
    Sketcher.Constraint("Coincident", 33, 2, 34, 1),
    Sketcher.Constraint("Coincident", 34, 2, 35, 1),
    Sketcher.Constraint("Coincident", 35, 2, 36, 1),
    Sketcher.Constraint("Coincident", 36, 2, 37, 1),
    Sketcher.Constraint("Coincident", 37, 2, 38, 1),
    Sketcher.Constraint("Coincident", 38, 2, 39, 1),
    Sketcher.Constraint("Coincident", 39, 2, 40, 1),
    Sketcher.Constraint("Coincident", 40, 2, 41, 1),
    Sketcher.Constraint("Coincident", 41, 2, 42, 1),
    Sketcher.Constraint("Coincident", 42, 2, 43, 1),
    Sketcher.Constraint("Coincident", 43, 2, 44, 1),
    Sketcher.Constraint("Coincident", 44, 2, 0, 1),
    Sketcher.Constraint("Vertical", 1),
    Sketcher.Constraint("Horizontal", 6),
    Sketcher.Constraint("Vertical", 7),
    Sketcher.Constraint("Horizontal", 10),
    Sketcher.Constraint("Horizontal", 14),
    Sketcher.Constraint("Vertical", 15),
    Sketcher.Constraint("Vertical", 17),
    Sketcher.Constraint("Parallel", 0, 2),
    Sketcher.Constraint("Parallel", 2, 4),
    Sketcher.Constraint("Perpendicular", 5, 8),
    Sketcher.Constraint("Perpendicular", 8, 11),
    Sketcher.Constraint("Parallel", 4, 12),
    Sketcher.Constraint("Parallel", 16, 18),
    Sketcher.Constraint("Perpendicular", 19, 20),
    Sketcher.Constraint("Parallel", 20, 22),
    Sketcher.Constraint("Parallel", 21, 23),
    Sketcher.Constraint("Parallel", 22, 24),
    Sketcher.Constraint("Perpendicular", 24, 25),
    Sketcher.Constraint("Perpendicular", 25, 26),
    Sketcher.Constraint("Parallel", 23, 27),
    Sketcher.Constraint("Parallel", 26, 28),
    Sketcher.Constraint("Perpendicular", 28, 29),
    Sketcher.Constraint("Perpendicular", 29, 30),
    Sketcher.Constraint("Parallel", 27, 31),
    Sketcher.Constraint("Parallel", 30, 32),
    Sketcher.Constraint("Perpendicular", 32, 33),
    Sketcher.Constraint("Parallel", 18, 34),
    Sketcher.Constraint("Perpendicular", 34, 35),
    Sketcher.Constraint("Perpendicular", 35, 36),
    Sketcher.Constraint("Parallel", 33, 37),
    Sketcher.Constraint("Perpendicular", 37, 38),
    Sketcher.Constraint("Perpendicular", 38, 39),
    Sketcher.Constraint("Perpendicular", 39, 40),
    Sketcher.Constraint("Perpendicular", 40, 41),
    Sketcher.Constraint("Perpendicular", 41, 42),
    Sketcher.Constraint("Perpendicular", 42, 43),
    Sketcher.Constraint("Vertical", 4, 2, 6, 2),
    Sketcher.Constraint("Vertical", 8, 2, 10, 2),
    Sketcher.Constraint("Vertical", 12, 2, 14, 2),
    Sketcher.Constraint("Vertical", 18, 2, 21, 2),
    Sketcher.Constraint("Vertical", 28, 2, 30, 2),
    Sketcher.Constraint("Vertical", 34, 2, 36, 2),
    Sketcher.Constraint("Vertical", 36, 2, 38, 2),
    Sketcher.Constraint("Vertical", 40, 2, 42, 2),
    Sketcher.Constraint("Angle", 0, Q("-135 deg")),
    Sketcher.Constraint("DistanceX", 10, 2, 10, 1, 0.466899),
    Sketcher.Constraint("DistanceX", 26, 2, 21, 2, 1.491),
    Sketcher.Constraint("DistanceX", 34, 2, 31, 2, 1.099001),
    Sketcher.Constraint("DistanceY", 41, 2, 37, 2, 2.920999),
    Sketcher.Constraint("Distance", 8, 0.9324),
    Sketcher.Constraint("Distance", 13, 0.693201),
    Sketcher.Constraint("Distance", 25, 1.041798),
    Sketcher.Constraint("Distance", 29, 1.197498),
    Sketcher.Constraint("DistanceX", 14, 2, 14, 1, 0.273338),
    Sketcher.Constraint("DistanceY", 1, 2, 1, 1, 1.14167),
    Sketcher.Constraint("DistanceY", 7, 2, 7, 1, 0.849141),
    Sketcher.Constraint("DistanceX", -1, 1, 12, 2, 17.060301),
    Sketcher.Constraint("DistanceY", 29, 2, -1, 1, 67.944698),
    Sketcher.Constraint("DistanceY", 12, 2, 10, 2, 1.336299),
    Sketcher.Constraint("DistanceX", 13, 2, 10, 2, 0.141698),
    Sketcher.Constraint("DistanceY", 16, 2, 11, 2, 2.761898),
    Sketcher.Constraint("DistanceY", 20, 2, 17, 2, 2.1413),
    Sketcher.Constraint("DistanceY", 23, 2, 20, 2, 2.731499),
    Sketcher.Constraint("DistanceX", 24, 2, 23, 2, 0.879402),
    Sketcher.Constraint("DistanceY", 27, 2, 26, 2, 1.209401),
    Sketcher.Constraint("DistanceY", 27, 2, 24, 2, 2.642498),
    Sketcher.Constraint("DistanceX", 31, 2, 29, 2, 0.221698),
    Sketcher.Constraint("DistanceY", 31, 2, 27, 2, 3.1488),
    Sketcher.Constraint("DistanceY", 36, 2, 31, 2, 4.098799),
    Sketcher.Constraint("DistanceX", 37, 2, 35, 2, 0.154601),
    Sketcher.Constraint("DistanceY", 40, 2, 37, 2, 1.710502),
    Sketcher.Constraint("Distance", 3, 1.194369),
    Sketcher.Constraint("Distance", 9, 1.00668),
    Sketcher.Constraint("Distance", 11, 0.712518),
    Sketcher.Constraint("Distance", 19, 0.715279),
    Sketcher.Constraint("Distance", 20, 1.052462),
    Sketcher.Constraint("Distance", 24, 1.06362),
    Sketcher.Constraint("Distance", 27, 1.31453),
    Sketcher.Constraint("Distance", 33, 1.195232),
    Sketcher.Constraint("Distance", 38, 0.67212),
    Sketcher.Constraint("Distance", 43, 1.336472),
    Sketcher.Constraint("DistanceX", 6, 2, 6, 1, 0.289865),
    Sketcher.Constraint("DistanceY", 15, 2, 15, 1, 0.940658),
    Sketcher.Constraint("DistanceY", 17, 2, 17, 1, 1.042337),
    Sketcher.Constraint("DistanceY", 3, 2, -1, 1, 50.036559),
    Sketcher.Constraint("DistanceX", -1, 1, 16, 2, 16.631849),
    Sketcher.Constraint("DistanceX", -1, 1, 39, 2, 13.740518),
    Sketcher.Constraint("DistanceY", 44, 2, -1, 1, 45.882272),
    Sketcher.Constraint("DistanceX", 2, 2, 1, 2, 1.040751),
    Sketcher.Constraint("DistanceX", 2, 2, 3, 2, 0.192559),
])
pocket3 = body.newObject("PartDesign::Pocket", "Pocket002")
pocket3.Profile = sketch5
pocket3.Length = 10

sketch6 = body.newObject("Sketcher::SketchObject", "Sketch005")
sketch6.AttachmentSupport = (doc.getObject("XZ_Plane"), [""])
sketch6.MapMode = "FlatFace"
sketch6.AttachmentOffset = App.Placement(Vector(0, 0, -1), App.Rotation())
sketch6.addGeometry([
    Part.LineSegment(Vector(20, -25, 0), Vector(7, -97, 0)),
    Part.LineSegment(Vector(7, -97, 0), Vector(21, -100, 0)),
    Part.LineSegment(Vector(21, -100, 0), Vector(36, -28, 0)),
    Part.LineSegment(Vector(36, -28, 0), Vector(20, -25, 0)),
], False)
sketch6.addConstraint([
    Sketcher.Constraint("Coincident", 0, 2, 1, 1),
    Sketcher.Constraint("Coincident", 1, 2, 2, 1),
    Sketcher.Constraint("Coincident", 2, 2, 3, 1),
    Sketcher.Constraint("Coincident", 3, 2, 0, 1),
    Sketcher.Constraint("Perpendicular", 0, 1),
    Sketcher.Constraint("Parallel", 1, 3),
    Sketcher.Constraint("Distance", 1, 14.585499),
    Sketcher.Constraint("Distance", 0, 72.930962),
    Sketcher.Constraint("Distance", 3, 16.423861),
    Sketcher.Constraint("DistanceX", -1, 1, 0, 2, 7.041342),
    Sketcher.Constraint("DistanceX", -1, 1, 1, 2, 21.408309),
    Sketcher.Constraint("DistanceY", 1, 2, -1, 1, 99.639441),
])
pocket4 = body.newObject("PartDesign::Pocket", "Pocket003")
pocket4.Profile = sketch6
pocket4.Type = "ThroughAll"
pocket4.Midplane = True

doc.recompute()
